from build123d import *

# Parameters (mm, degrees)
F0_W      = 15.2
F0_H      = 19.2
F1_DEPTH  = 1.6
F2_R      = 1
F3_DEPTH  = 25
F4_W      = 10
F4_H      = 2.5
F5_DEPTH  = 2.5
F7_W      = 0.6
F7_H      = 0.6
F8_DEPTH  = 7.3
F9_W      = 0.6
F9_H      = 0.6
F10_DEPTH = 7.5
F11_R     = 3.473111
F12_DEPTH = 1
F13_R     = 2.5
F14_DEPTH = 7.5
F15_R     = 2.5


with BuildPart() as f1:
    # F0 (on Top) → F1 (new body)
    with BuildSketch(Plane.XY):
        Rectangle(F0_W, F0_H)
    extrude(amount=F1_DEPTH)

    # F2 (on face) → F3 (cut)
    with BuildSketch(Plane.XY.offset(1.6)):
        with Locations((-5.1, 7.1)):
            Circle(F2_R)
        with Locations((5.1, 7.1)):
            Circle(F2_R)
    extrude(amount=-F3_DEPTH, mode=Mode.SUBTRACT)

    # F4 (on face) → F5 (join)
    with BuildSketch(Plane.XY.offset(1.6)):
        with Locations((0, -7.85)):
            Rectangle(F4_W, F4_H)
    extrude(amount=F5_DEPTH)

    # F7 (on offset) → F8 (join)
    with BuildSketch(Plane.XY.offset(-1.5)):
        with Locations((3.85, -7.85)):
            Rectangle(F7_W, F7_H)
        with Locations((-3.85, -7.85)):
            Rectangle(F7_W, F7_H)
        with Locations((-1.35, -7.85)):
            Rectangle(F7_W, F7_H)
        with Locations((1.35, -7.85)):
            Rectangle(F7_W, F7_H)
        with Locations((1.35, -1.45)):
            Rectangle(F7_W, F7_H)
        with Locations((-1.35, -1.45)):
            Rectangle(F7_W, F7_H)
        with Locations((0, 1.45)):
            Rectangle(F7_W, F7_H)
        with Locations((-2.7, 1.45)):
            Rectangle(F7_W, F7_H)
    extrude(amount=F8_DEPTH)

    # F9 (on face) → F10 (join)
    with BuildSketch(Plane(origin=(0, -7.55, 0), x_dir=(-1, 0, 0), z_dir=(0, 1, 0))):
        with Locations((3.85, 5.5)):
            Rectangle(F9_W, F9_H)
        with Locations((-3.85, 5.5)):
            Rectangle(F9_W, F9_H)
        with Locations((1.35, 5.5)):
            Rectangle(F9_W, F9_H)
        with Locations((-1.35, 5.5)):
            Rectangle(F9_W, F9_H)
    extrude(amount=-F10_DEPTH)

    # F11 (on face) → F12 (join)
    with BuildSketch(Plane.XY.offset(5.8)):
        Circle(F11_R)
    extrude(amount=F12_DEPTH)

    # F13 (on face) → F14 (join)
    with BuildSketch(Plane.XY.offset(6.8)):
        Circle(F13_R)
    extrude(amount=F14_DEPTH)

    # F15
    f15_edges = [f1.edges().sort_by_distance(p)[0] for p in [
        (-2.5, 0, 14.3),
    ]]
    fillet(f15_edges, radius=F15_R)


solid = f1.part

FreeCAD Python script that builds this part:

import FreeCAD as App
import Part
import Sketcher


def edges_at(feature, points):
    """Names of the edges that pass closest to the given points."""
    edges = feature.Shape.Edges
    near = lambda p: min(range(len(edges)), key=lambda i: edges[i].distToShape(Part.Vertex(*p))[0])
    return sorted({f"Edge{near(p) + 1}" for p in points})

doc = App.newDocument("Part")
params = doc.addObject("Spreadsheet::Sheet", "Params")
for row, (alias, value) in enumerate([
    ("sketch1_width", "15.2 mm"),
    ("sketch1_height", "19.2 mm"),
    ("pad1_length", "1.6 mm"),
    ("sketch2_diameter", "2 mm"),
    ("pocket1_length", "25 mm"),
    ("sketch3_width", "10 mm"),
    ("sketch3_height", "2.5 mm"),
    ("pad2_length", "2.5 mm"),
    ("sketch4_width", "0.6 mm"),
    ("pad3_length", "7.3 mm"),
    ("sketch5_width", "0.6 mm"),
    ("pad4_length", "7.5 mm"),
    ("pad5_length", "1 mm"),
    ("sketch7_diameter", "5 mm"),
    ("pad6_length", "7.5 mm"),
    ("fillet_radius", "2.5 mm"),
], start=1):
    params.set(f"A{row}", alias)
    params.set(f"B{row}", "=" + value)
    params.setAlias(f"B{row}", alias)

body = doc.addObject("PartDesign::Body", "Body")

sketch1 = body.newObject("Sketcher::SketchObject", "Sketch")
sketch1.AttachmentSupport = (doc.getObject("XY_Plane"), [""])
sketch1.MapMode = "FlatFace"
sketch1.addGeometry(Part.LineSegment(App.Vector(-7.6, 9.6, 0), App.Vector(-7.6, -9.6, 0)), False)
sketch1.addGeometry(Part.LineSegment(App.Vector(-7.6, -9.6, 0), App.Vector(7.6, -9.6, 0)), False)
sketch1.addGeometry(Part.LineSegment(App.Vector(7.6, -9.6, 0), App.Vector(7.6, 9.6, 0)), False)
sketch1.addGeometry(Part.LineSegment(App.Vector(7.6, 9.6, 0), App.Vector(-7.6, 9.6, 0)), False)
sketch1.addConstraint(Sketcher.Constraint("Coincident", 0, 2, 1, 1))
sketch1.addConstraint(Sketcher.Constraint("Coincident", 1, 2, 2, 1))
sketch1.addConstraint(Sketcher.Constraint("Coincident", 2, 2, 3, 1))
sketch1.addConstraint(Sketcher.Constraint("Coincident", 3, 2, 0, 1))
sketch1.addConstraint(Sketcher.Constraint("Vertical", 0))
sketch1.addConstraint(Sketcher.Constraint("Horizontal", 1))
sketch1.addConstraint(Sketcher.Constraint("Vertical", 2))
sketch1.addConstraint(Sketcher.Constraint("Horizontal", 3))
sketch1.addConstraint(Sketcher.Constraint("Symmetric", 0, 2, 2, 2, -1, 1))
sketch1.addConstraint(Sketcher.Constraint("DistanceX", 1, 1, 1, 2, 15.2))
sketch1.addConstraint(Sketcher.Constraint("DistanceY", 0, 2, 0, 1, 19.2))
sketch1.setExpression("Constraints[9]", "Params.sketch1_width")
sketch1.setExpression("Constraints[10]", "Params.sketch1_height")
pad1 = body.newObject("PartDesign::Pad", "Pad")
pad1.Profile = sketch1
pad1.setExpression("Length", "Params.pad1_length")

sketch2 = body.newObject("Sketcher::SketchObject", "Sketch001")
sketch2.AttachmentSupport = (doc.getObject("XY_Plane"), [""])
sketch2.MapMode = "FlatFace"
sketch2.AttachmentOffset = App.Placement(App.Vector(0, 0, 1.6), App.Rotation())
sketch2.addGeometry(Part.Circle(App.Vector(-5.1, 7.1, 0), App.Vector(0, 0, 1), 1), False)
sketch2.addGeometry(Part.Circle(App.Vector(5.1, 7.1, 0), App.Vector(0, 0, 1), 1), False)
sketch2.addConstraint(Sketcher.Constraint("Equal", 0, 1))
sketch2.addConstraint(Sketcher.Constraint("Symmetric", 0, 3, 1, 3, -2))
sketch2.addConstraint(Sketcher.Constraint("Diameter", 0, 2.0))
sketch2.addConstraint(Sketcher.Constraint("DistanceX", 0, 3, -1, 1, 5.1))
sketch2.addConstraint(Sketcher.Constraint("DistanceY", -1, 1, 0, 3, 7.1))
sketch2.setExpression("Constraints[2]", "Params.sketch2_diameter")
pocket1 = body.newObject("PartDesign::Pocket", "Pocket")
pocket1.Profile = sketch2
pocket1.setExpression("Length", "Params.pocket1_length")

sketch3 = body.newObject("Sketcher::SketchObject", "Sketch002")
sketch3.AttachmentSupport = (doc.getObject("XY_Plane"), [""])
sketch3.MapMode = "FlatFace"
sketch3.AttachmentOffset = App.Placement(App.Vector(0, 0, 1.6), App.Rotation())
sketch3.addGeometry(Part.LineSegment(App.Vector(-5, -6.6, 0), App.Vector(-5, -9.1, 0)), False)
sketch3.addGeometry(Part.LineSegment(App.Vector(-5, -9.1, 0), App.Vector(5, -9.1, 0)), False)
sketch3.addGeometry(Part.LineSegment(App.Vector(5, -9.1, 0), App.Vector(5, -6.6, 0)), False)
sketch3.addGeometry(Part.LineSegment(App.Vector(5, -6.6, 0), App.Vector(-5, -6.6, 0)), False)
sketch3.addConstraint(Sketcher.Constraint("Coincident", 0, 2, 1, 1))
sketch3.addConstraint(Sketcher.Constraint("Coincident", 1, 2, 2, 1))
sketch3.addConstraint(Sketcher.Constraint("Coincident", 2, 2, 3, 1))
sketch3.addConstraint(Sketcher.Constraint("Coincident", 3, 2, 0, 1))
sketch3.addConstraint(Sketcher.Constraint("Vertical", 0))
sketch3.addConstraint(Sketcher.Constraint("Horizontal", 1))
sketch3.addConstraint(Sketcher.Constraint("Vertical", 2))
sketch3.addConstraint(Sketcher.Constraint("Horizontal", 3))
sketch3.addConstraint(Sketcher.Constraint("DistanceX", 1, 1, 1, 2, 10.0))
sketch3.addConstraint(Sketcher.Constraint("DistanceY", 0, 2, 0, 1, 2.5))
sketch3.addConstraint(Sketcher.Constraint("DistanceX", 0, 2, -1, 1, 5.0))
sketch3.addConstraint(Sketcher.Constraint("DistanceY", 0, 2, -1, 1, 9.1))
sketch3.setExpression("Constraints[8]", "Params.sketch3_width")
sketch3.setExpression("Constraints[9]", "Params.sketch3_height")
pad2 = body.newObject("PartDesign::Pad", "Pad001")
pad2.Profile = sketch3
pad2.setExpression("Length", "Params.pad2_length")

sketch4 = body.newObject("Sketcher::SketchObject", "Sketch003")
sketch4.AttachmentSupport = (doc.getObject("XY_Plane"), [""])
sketch4.MapMode = "FlatFace"
sketch4.AttachmentOffset = App.Placement(App.Vector(0, 0, -1.5), App.Rotation())
sketch4.addGeometry(Part.LineSegment(App.Vector(3.55, -7.55, 0), App.Vector(3.55, -8.15, 0)), False)
sketch4.addGeometry(Part.LineSegment(App.Vector(3.55, -8.15, 0), App.Vector(4.15, -8.15, 0)), False)
sketch4.addGeometry(Part.LineSegment(App.Vector(4.15, -8.15, 0), App.Vector(4.15, -7.55, 0)), False)
sketch4.addGeometry(Part.LineSegment(App.Vector(4.15, -7.55, 0), App.Vector(3.55, -7.55, 0)), False)
sketch4.addGeometry(Part.LineSegment(App.Vector(-4.15, -7.55, 0), App.Vector(-4.15, -8.15, 0)), False)
sketch4.addGeometry(Part.LineSegment(App.Vector(-4.15, -8.15, 0), App.Vector(-3.55, -8.15, 0)), False)
sketch4.addGeometry(Part.LineSegment(App.Vector(-3.55, -8.15, 0), App.Vector(-3.55, -7.55, 0)), False)
sketch4.addGeometry(Part.LineSegment(App.Vector(-3.55, -7.55, 0), App.Vector(-4.15, -7.55, 0)), False)
sketch4.addGeometry(Part.LineSegment(App.Vector(-1.65, -7.55, 0), App.Vector(-1.65, -8.15, 0)), False)
sketch4.addGeometry(Part.LineSegment(App.Vector(-1.65, -8.15, 0), App.Vector(-1.05, -8.15, 0)), False)
sketch4.addGeometry(Part.LineSegment(App.Vector(-1.05, -8.15, 0), App.Vector(-1.05, -7.55, 0)), False)
sketch4.addGeometry(Part.LineSegment(App.Vector(-1.05, -7.55, 0), App.Vector(-1.65, -7.55, 0)), False)
sketch4.addGeometry(Part.LineSegment(App.Vector(1.05, -7.55, 0), App.Vector(1.05, -8.15, 0)), False)
sketch4.addGeometry(Part.LineSegment(App.Vector(1.05, -8.15, 0), App.Vector(1.65, -8.15, 0)), False)
sketch4.addGeometry(Part.LineSegment(App.Vector(1.65, -8.15, 0), App.Vector(1.65, -7.55, 0)), False)
sketch4.addGeometry(Part.LineSegment(App.Vector(1.65, -7.55, 0), App.Vector(1.05, -7.55, 0)), False)
sketch4.addGeometry(Part.LineSegment(App.Vector(1.05, -1.15, 0), App.Vector(1.05, -1.75, 0)), False)
sketch4.addGeometry(Part.LineSegment(App.Vector(1.05, -1.75, 0), App.Vector(1.65, -1.75, 0)), False)
sketch4.addGeometry(Part.LineSegment(App.Vector(1.65, -1.75, 0), App.Vector(1.65, -1.15, 0)), False)
sketch4.addGeometry(Part.LineSegment(App.Vector(1.65, -1.15, 0), App.Vector(1.05, -1.15, 0)), False)
sketch4.addGeometry(Part.LineSegment(App.Vector(-1.65, -1.15, 0), App.Vector(-1.65, -1.75, 0)), False)
sketch4.addGeometry(Part.LineSegment(App.Vector(-1.65, -1.75, 0), App.Vector(-1.05, -1.75, 0)), False)
sketch4.addGeometry(Part.LineSegment(App.Vector(-1.05, -1.75, 0), App.Vector(-1.05, -1.15, 0)), False)
sketch4.addGeometry(Part.LineSegment(App.Vector(-1.05, -1.15, 0), App.Vector(-1.65, -1.15, 0)), False)
sketch4.addGeometry(Part.LineSegment(App.Vector(-0.3, 1.75, 0), App.Vector(-0.3, 1.15, 0)), False)
sketch4.addGeometry(Part.LineSegment(App.Vector(-0.3, 1.15, 0), App.Vector(0.3, 1.15, 0)), False)
sketch4.addGeometry(Part.LineSegment(App.Vector(0.3, 1.15, 0), App.Vector(0.3, 1.75, 0)), False)
sketch4.addGeometry(Part.LineSegment(App.Vector(0.3, 1.75, 0), App.Vector(-0.3, 1.75, 0)), False)
sketch4.addGeometry(Part.LineSegment(App.Vector(-3, 1.75, 0), App.Vector(-3, 1.15, 0)), False)
sketch4.addGeometry(Part.LineSegment(App.Vector(-3, 1.15, 0), App.Vector(-2.4, 1.15, 0)), False)
sketch4.addGeometry(Part.LineSegment(App.Vector(-2.4, 1.15, 0), App.Vector(-2.4, 1.75, 0)), False)
sketch4.addGeometry(Part.LineSegment(App.Vector(-2.4, 1.75, 0), App.Vector(-3, 1.75, 0)), False)
sketch4.addConstraint(Sketcher.Constraint("Coincident", 0, 2, 1, 1))
sketch4.addConstraint(Sketcher.Constraint("Coincident", 1, 2, 2, 1))
sketch4.addConstraint(Sketcher.Constraint("Coincident", 2, 2, 3, 1))
sketch4.addConstraint(Sketcher.Constraint("Coincident", 3, 2, 0, 1))
sketch4.addConstraint(Sketcher.Constraint("Coincident", 4, 2, 5, 1))
sketch4.addConstraint(Sketcher.Constraint("Coincident", 5, 2, 6, 1))
sketch4.addConstraint(Sketcher.Constraint("Coincident", 6, 2, 7, 1))
sketch4.addConstraint(Sketcher.Constraint("Coincident", 7, 2, 4, 1))
sketch4.addConstraint(Sketcher.Constraint("Coincident", 8, 2, 9, 1))
sketch4.addConstraint(Sketcher.Constraint("Coincident", 9, 2, 10, 1))
sketch4.addConstraint(Sketcher.Constraint("Coincident", 10, 2, 11, 1))
sketch4.addConstraint(Sketcher.Constraint("Coincident", 11, 2, 8, 1))
sketch4.addConstraint(Sketcher.Constraint("Coincident", 12, 2, 13, 1))
sketch4.addConstraint(Sketcher.Constraint("Coincident", 13, 2, 14, 1))
sketch4.addConstraint(Sketcher.Constraint("Coincident", 14, 2, 15, 1))
sketch4.addConstraint(Sketcher.Constraint("Coincident", 15, 2, 12, 1))
sketch4.addConstraint(Sketcher.Constraint("Coincident", 16, 2, 17, 1))
sketch4.addConstraint(Sketcher.Constraint("Coincident", 17, 2, 18, 1))
sketch4.addConstraint(Sketcher.Constraint("Coincident", 18, 2, 19, 1))
sketch4.addConstraint(Sketcher.Constraint("Coincident", 19, 2, 16, 1))
sketch4.addConstraint(Sketcher.Constraint("Coincident", 20, 2, 21, 1))
sketch4.addConstraint(Sketcher.Constraint("Coincident", 21, 2, 22, 1))
sketch4.addConstraint(Sketcher.Constraint("Coincident", 22, 2, 23, 1))
sketch4.addConstraint(Sketcher.Constraint("Coincident", 23, 2, 20, 1))
sketch4.addConstraint(Sketcher.Constraint("Coincident", 24, 2, 25, 1))
sketch4.addConstraint(Sketcher.Constraint("Coincident", 25, 2, 26, 1))
sketch4.addConstraint(Sketcher.Constraint("Coincident", 26, 2, 27, 1))
sketch4.addConstraint(Sketcher.Constraint("Coincident", 27, 2, 24, 1))
sketch4.addConstraint(Sketcher.Constraint("Coincident", 28, 2, 29, 1))
sketch4.addConstraint(Sketcher.Constraint("Coincident", 29, 2, 30, 1))
sketch4.addConstraint(Sketcher.Constraint("Coincident", 30, 2, 31, 1))
sketch4.addConstraint(Sketcher.Constraint("Coincident", 31, 2, 28, 1))
sketch4.addConstraint(Sketcher.Constraint("Vertical", 0))
sketch4.addConstraint(Sketcher.Constraint("Horizontal", 1))
sketch4.addConstraint(Sketcher.Constraint("Vertical", 2))
sketch4.addConstraint(Sketcher.Constraint("Horizontal", 3))
sketch4.addConstraint(Sketcher.Constraint("Vertical", 4))
sketch4.addConstraint(Sketcher.Constraint("Horizontal", 5))
sketch4.addConstraint(Sketcher.Constraint("Vertical", 6))
sketch4.addConstraint(Sketcher.Constraint("Horizontal", 7))
sketch4.addConstraint(Sketcher.Constraint("Vertical", 8))
sketch4.addConstraint(Sketcher.Constraint("Horizontal", 9))
sketch4.addConstraint(Sketcher.Constraint("Vertical", 10))
sketch4.addConstraint(Sketcher.Constraint("Horizontal", 11))
sketch4.addConstraint(Sketcher.Constraint("Vertical", 12))
sketch4.addConstraint(Sketcher.Constraint("Horizontal", 13))
sketch4.addConstraint(Sketcher.Constraint("Vertical", 14))
sketch4.addConstraint(Sketcher.Constraint("Horizontal", 15))
sketch4.addConstraint(Sketcher.Constraint("Vertical", 16))
sketch4.addConstraint(Sketcher.Constraint("Horizontal", 17))
sketch4.addConstraint(Sketcher.Constraint("Vertical", 18))
sketch4.addConstraint(Sketcher.Constraint("Horizontal", 19))
sketch4.addConstraint(Sketcher.Constraint("Vertical", 20))
sketch4.addConstraint(Sketcher.Constraint("Horizontal", 21))
sketch4.addConstraint(Sketcher.Constraint("Vertical", 22))
sketch4.addConstraint(Sketcher.Constraint("Horizontal", 23))
sketch4.addConstraint(Sketcher.Constraint("Vertical", 24))
sketch4.addConstraint(Sketcher.Constraint("Horizontal", 25))
sketch4.addConstraint(Sketcher.Constraint("Vertical", 26))
sketch4.addConstraint(Sketcher.Constraint("Horizontal", 27))
sketch4.addConstraint(Sketcher.Constraint("Vertical", 28))
sketch4.addConstraint(Sketcher.Constraint("Horizontal", 29))
sketch4.addConstraint(Sketcher.Constraint("Vertical", 30))
sketch4.addConstraint(Sketcher.Constraint("Horizontal", 31))
sketch4.addConstraint(Sketcher.Constraint("Symmetric", 1, 2, 4, 2, -2))
sketch4.addConstraint(Sketcher.Constraint("Symmetric", 3, 2, 6, 2, -2))
sketch4.addConstraint(Sketcher.Constraint("Symmetric", 9, 2, 12, 2, -2))
sketch4.addConstraint(Sketcher.Constraint("Symmetric", 11, 2, 14, 2, -2))
sketch4.addConstraint(Sketcher.Constraint("Symmetric", 17, 2, 20, 2, -2))
sketch4.addConstraint(Sketcher.Constraint("Symmetric", 19, 2, 22, 2, -2))
sketch4.addConstraint(Sketcher.Constraint("Horizontal", 5, 2, 8, 2))
sketch4.addConstraint(Sketcher.Constraint("Horizontal", 7, 2, 10, 2))
sketch4.addConstraint(Sketcher.Constraint("Horizontal", 25, 2, 28, 2))
sketch4.addConstraint(Sketcher.Constraint("Horizontal", 27, 2, 30, 2))
sketch4.addConstraint(Sketcher.Constraint("Vertical", 15, 2, 16, 2))
sketch4.addConstraint(Sketcher.Constraint("Vertical", 14, 2, 17, 2))
sketch4.addConstraint(Sketcher.Constraint("Equal", 7, 9))
sketch4.addConstraint(Sketcher.Constraint("Equal", 23, 25))
sketch4.addConstraint(Sketcher.Constraint("Equal", 27, 29))
sketch4.addConstraint(Sketcher.Constraint("Equal", 31, 0))
sketch4.addConstraint(Sketcher.Constraint("Equal", 14, 16))
sketch4.addConstraint(Sketcher.Constraint("Equal", 22, 24))
sketch4.addConstraint(Sketcher.Constraint("DistanceX", 1, 1, 1, 2, 0.6))
sketch4.addConstraint(Sketcher.Constraint("DistanceX", 28, 2, -1, 1, 3.0))
sketch4.addConstraint(Sketcher.Constraint("DistanceX", 24, 2, -1, 1, 0.3))
sketch4.addConstraint(Sketcher.Constraint("DistanceX", 4, 2, 0, 2, 7.7))
sketch4.addConstraint(Sketcher.Constraint("DistanceX", 5, 2, 8, 2, 1.9))
sketch4.addConstraint(Sketcher.Constraint("DistanceY", 15, 2, 16, 2, 5.8))
sketch4.addConstraint(Sketcher.Constraint("DistanceY", 22, 2, 24, 2, 2.3))
sketch4.addConstraint(Sketcher.Constraint("DistanceY", 0, 2, -1, 1, 8.15))
sketch4.setExpression("Constraints[82]", "Params.sketch4_width")
pad3 = body.newObject("PartDesign::Pad", "Pad002")
pad3.Profile = sketch4
pad3.setExpression("Length", "Params.pad3_length")

sketch5 = body.newObject("Sketcher::SketchObject", "Sketch004")
sketch5.AttachmentSupport = (doc.getObject("XZ_Plane"), [""])
sketch5.MapMode = "FlatFace"
sketch5.AttachmentOffset = App.Placement(App.Vector(0, 0, 7.55), App.Rotation())
sketch5.addGeometry(Part.LineSegment(App.Vector(-3.55, 5.8, 0), App.Vector(-3.55, 5.2, 0)), False)
sketch5.addGeometry(Part.LineSegment(App.Vector(-3.55, 5.2, 0), App.Vector(-4.15, 5.2, 0)), False)
sketch5.addGeometry(Part.LineSegment(App.Vector(-4.15, 5.2, 0), App.Vector(-4.15, 5.8, 0)), False)
sketch5.addGeometry(Part.LineSegment(App.Vector(-4.15, 5.8, 0), App.Vector(-3.55, 5.8, 0)), False)
sketch5.addGeometry(Part.LineSegment(App.Vector(4.15, 5.8, 0), App.Vector(4.15, 5.2, 0)), False)
sketch5.addGeometry(Part.LineSegment(App.Vector(4.15, 5.2, 0), App.Vector(3.55, 5.2, 0)), False)
sketch5.addGeometry(Part.LineSegment(App.Vector(3.55, 5.2, 0), App.Vector(3.55, 5.8, 0)), False)
sketch5.addGeometry(Part.LineSegment(App.Vector(3.55, 5.8, 0), App.Vector(4.15, 5.8, 0)), False)
sketch5.addGeometry(Part.LineSegment(App.Vector(-1.05, 5.8, 0), App.Vector(-1.05, 5.2, 0)), False)
sketch5.addGeometry(Part.LineSegment(App.Vector(-1.05, 5.2, 0), App.Vector(-1.65, 5.2, 0)), False)
sketch5.addGeometry(Part.LineSegment(App.Vector(-1.65, 5.2, 0), App.Vector(-1.65, 5.8, 0)), False)
sketch5.addGeometry(Part.LineSegment(App.Vector(-1.65, 5.8, 0), App.Vector(-1.05, 5.8, 0)), False)
sketch5.addGeometry(Part.LineSegment(App.Vector(1.65, 5.8, 0), App.Vector(1.65, 5.2, 0)), False)
sketch5.addGeometry(Part.LineSegment(App.Vector(1.65, 5.2, 0), App.Vector(1.05, 5.2, 0)), False)
sketch5.addGeometry(Part.LineSegment(App.Vector(1.05, 5.2, 0), App.Vector(1.05, 5.8, 0)), False)
sketch5.addGeometry(Part.LineSegment(App.Vector(1.05, 5.8, 0), App.Vector(1.65, 5.8, 0)), False)
sketch5.addConstraint(Sketcher.Constraint("Coincident", 0, 2, 1, 1))
sketch5.addConstraint(Sketcher.Constraint("Coincident", 1, 2, 2, 1))
sketch5.addConstraint(Sketcher.Constraint("Coincident", 2, 2, 3, 1))
sketch5.addConstraint(Sketcher.Constraint("Coincident", 3, 2, 0, 1))
sketch5.addConstraint(Sketcher.Constraint("Coincident", 4, 2, 5, 1))
sketch5.addConstraint(Sketcher.Constraint("Coincident", 5, 2, 6, 1))
sketch5.addConstraint(Sketcher.Constraint("Coincident", 6, 2, 7, 1))
sketch5.addConstraint(Sketcher.Constraint("Coincident", 7, 2, 4, 1))
sketch5.addConstraint(Sketcher.Constraint("Coincident", 8, 2, 9, 1))
sketch5.addConstraint(Sketcher.Constraint("Coincident", 9, 2, 10, 1))
sketch5.addConstraint(Sketcher.Constraint("Coincident", 10, 2, 11, 1))
sketch5.addConstraint(Sketcher.Constraint("Coincident", 11, 2, 8, 1))
sketch5.addConstraint(Sketcher.Constraint("Coincident", 12, 2, 13, 1))
sketch5.addConstraint(Sketcher.Constraint("Coincident", 13, 2, 14, 1))
sketch5.addConstraint(Sketcher.Constraint("Coincident", 14, 2, 15, 1))
sketch5.addConstraint(Sketcher.Constraint("Coincident", 15, 2, 12, 1))
sketch5.addConstraint(Sketcher.Constraint("Vertical", 0))
sketch5.addConstraint(Sketcher.Constraint("Horizontal", 1))
sketch5.addConstraint(Sketcher.Constraint("Vertical", 2))
sketch5.addConstraint(Sketcher.Constraint("Horizontal", 3))
sketch5.addConstraint(Sketcher.Constraint("Vertical", 4))
sketch5.addConstraint(Sketcher.Constraint("Horizontal", 5))
sketch5.addConstraint(Sketcher.Constraint("Vertical", 6))
sketch5.addConstraint(Sketcher.Constraint("Horizontal", 7))
sketch5.addConstraint(Sketcher.Constraint("Vertical", 8))
sketch5.addConstraint(Sketcher.Constraint("Horizontal", 9))
sketch5.addConstraint(Sketcher.Constraint("Vertical", 10))
sketch5.addConstraint(Sketcher.Constraint("Horizontal", 11))
sketch5.addConstraint(Sketcher.Constraint("Vertical", 12))
sketch5.addConstraint(Sketcher.Constraint("Horizontal", 13))
sketch5.addConstraint(Sketcher.Constraint("Vertical", 14))
sketch5.addConstraint(Sketcher.Constraint("Horizontal", 15))
sketch5.addConstraint(Sketcher.Constraint("Symmetric", 1, 2, 4, 2, -2))
sketch5.addConstraint(Sketcher.Constraint("Symmetric", 3, 2, 6, 2, -2))
sketch5.addConstraint(Sketcher.Constraint("Symmetric", 9, 2, 12, 2, -2))
sketch5.addConstraint(Sketcher.Constraint("Symmetric", 11, 2, 14, 2, -2))
sketch5.addConstraint(Sketcher.Constraint("Horizontal", 5, 2, 8, 2))
sketch5.addConstraint(Sketcher.Constraint("Horizontal", 7, 2, 10, 2))
sketch5.addConstraint(Sketcher.Constraint("Equal", 7, 9))
sketch5.addConstraint(Sketcher.Constraint("Equal", 15, 0))
sketch5.addConstraint(Sketcher.Constraint("DistanceX", 1, 2, 1, 1, 0.6))
sketch5.addConstraint(Sketcher.Constraint("DistanceY", -1, 1, 0, 2, 5.2))
sketch5.addConstraint(Sketcher.Constraint("DistanceX", 0, 2, 4, 2, 7.7))
sketch5.addConstraint(Sketcher.Constraint("DistanceX", 0, 2, 8, 2, 2.5))
sketch5.setExpression("Constraints[40]", "Params.sketch5_width")
pad4 = body.newObject("PartDesign::Pad", "Pad003")
pad4.Profile = sketch5
pad4.setExpression("Length", "Params.pad4_length")

sketch6 = body.newObject("Sketcher::SketchObject", "Sketch005")
sketch6.AttachmentSupport = (doc.getObject("XY_Plane"), [""])
sketch6.MapMode = "FlatFace"
sketch6.AttachmentOffset = App.Placement(App.Vector(0, 0, 5.8), App.Rotation())
sketch6.addGeometry(Part.Circle(App.Vector(0, 0, 0), App.Vector(0, 0, 1), 3.473111), False)
sketch6.addConstraint(Sketcher.Constraint("Coincident", 0, 3, -1, 1))
sketch6.addConstraint(Sketcher.Constraint("Diameter", 0, 6.946222))
pad5 = body.newObject("PartDesign::Pad", "Pad004")
pad5.Profile = sketch6
pad5.setExpression("Length", "Params.pad5_length")

sketch7 = body.newObject("Sketcher::SketchObject", "Sketch006")
sketch7.AttachmentSupport = (doc.getObject("XY_Plane"), [""])
sketch7.MapMode = "FlatFace"
sketch7.AttachmentOffset = App.Placement(App.Vector(0, 0, 6.8), App.Rotation())
sketch7.addGeometry(Part.Circle(App.Vector(0, 0, 0), App.Vector(0, 0, 1), 2.5), False)
sketch7.addConstraint(Sketcher.Constraint("Coincident", 0, 3, -1, 1))
sketch7.addConstraint(Sketcher.Constraint("Diameter", 0, 5.0))
sketch7.setExpression("Constraints[1]", "Params.sketch7_diameter")
pad6 = body.newObject("PartDesign::Pad", "Pad005")
pad6.Profile = sketch7
pad6.setExpression("Length", "Params.pad6_length")
doc.recompute()

fillet = body.newObject("PartDesign::Fillet", "Fillet")
fillet.Base = (pad6, edges_at(pad6, [(-2.5, 0, 14.3)]))
fillet.setExpression("Radius", "Params.fillet_radius")

doc.recompute()
